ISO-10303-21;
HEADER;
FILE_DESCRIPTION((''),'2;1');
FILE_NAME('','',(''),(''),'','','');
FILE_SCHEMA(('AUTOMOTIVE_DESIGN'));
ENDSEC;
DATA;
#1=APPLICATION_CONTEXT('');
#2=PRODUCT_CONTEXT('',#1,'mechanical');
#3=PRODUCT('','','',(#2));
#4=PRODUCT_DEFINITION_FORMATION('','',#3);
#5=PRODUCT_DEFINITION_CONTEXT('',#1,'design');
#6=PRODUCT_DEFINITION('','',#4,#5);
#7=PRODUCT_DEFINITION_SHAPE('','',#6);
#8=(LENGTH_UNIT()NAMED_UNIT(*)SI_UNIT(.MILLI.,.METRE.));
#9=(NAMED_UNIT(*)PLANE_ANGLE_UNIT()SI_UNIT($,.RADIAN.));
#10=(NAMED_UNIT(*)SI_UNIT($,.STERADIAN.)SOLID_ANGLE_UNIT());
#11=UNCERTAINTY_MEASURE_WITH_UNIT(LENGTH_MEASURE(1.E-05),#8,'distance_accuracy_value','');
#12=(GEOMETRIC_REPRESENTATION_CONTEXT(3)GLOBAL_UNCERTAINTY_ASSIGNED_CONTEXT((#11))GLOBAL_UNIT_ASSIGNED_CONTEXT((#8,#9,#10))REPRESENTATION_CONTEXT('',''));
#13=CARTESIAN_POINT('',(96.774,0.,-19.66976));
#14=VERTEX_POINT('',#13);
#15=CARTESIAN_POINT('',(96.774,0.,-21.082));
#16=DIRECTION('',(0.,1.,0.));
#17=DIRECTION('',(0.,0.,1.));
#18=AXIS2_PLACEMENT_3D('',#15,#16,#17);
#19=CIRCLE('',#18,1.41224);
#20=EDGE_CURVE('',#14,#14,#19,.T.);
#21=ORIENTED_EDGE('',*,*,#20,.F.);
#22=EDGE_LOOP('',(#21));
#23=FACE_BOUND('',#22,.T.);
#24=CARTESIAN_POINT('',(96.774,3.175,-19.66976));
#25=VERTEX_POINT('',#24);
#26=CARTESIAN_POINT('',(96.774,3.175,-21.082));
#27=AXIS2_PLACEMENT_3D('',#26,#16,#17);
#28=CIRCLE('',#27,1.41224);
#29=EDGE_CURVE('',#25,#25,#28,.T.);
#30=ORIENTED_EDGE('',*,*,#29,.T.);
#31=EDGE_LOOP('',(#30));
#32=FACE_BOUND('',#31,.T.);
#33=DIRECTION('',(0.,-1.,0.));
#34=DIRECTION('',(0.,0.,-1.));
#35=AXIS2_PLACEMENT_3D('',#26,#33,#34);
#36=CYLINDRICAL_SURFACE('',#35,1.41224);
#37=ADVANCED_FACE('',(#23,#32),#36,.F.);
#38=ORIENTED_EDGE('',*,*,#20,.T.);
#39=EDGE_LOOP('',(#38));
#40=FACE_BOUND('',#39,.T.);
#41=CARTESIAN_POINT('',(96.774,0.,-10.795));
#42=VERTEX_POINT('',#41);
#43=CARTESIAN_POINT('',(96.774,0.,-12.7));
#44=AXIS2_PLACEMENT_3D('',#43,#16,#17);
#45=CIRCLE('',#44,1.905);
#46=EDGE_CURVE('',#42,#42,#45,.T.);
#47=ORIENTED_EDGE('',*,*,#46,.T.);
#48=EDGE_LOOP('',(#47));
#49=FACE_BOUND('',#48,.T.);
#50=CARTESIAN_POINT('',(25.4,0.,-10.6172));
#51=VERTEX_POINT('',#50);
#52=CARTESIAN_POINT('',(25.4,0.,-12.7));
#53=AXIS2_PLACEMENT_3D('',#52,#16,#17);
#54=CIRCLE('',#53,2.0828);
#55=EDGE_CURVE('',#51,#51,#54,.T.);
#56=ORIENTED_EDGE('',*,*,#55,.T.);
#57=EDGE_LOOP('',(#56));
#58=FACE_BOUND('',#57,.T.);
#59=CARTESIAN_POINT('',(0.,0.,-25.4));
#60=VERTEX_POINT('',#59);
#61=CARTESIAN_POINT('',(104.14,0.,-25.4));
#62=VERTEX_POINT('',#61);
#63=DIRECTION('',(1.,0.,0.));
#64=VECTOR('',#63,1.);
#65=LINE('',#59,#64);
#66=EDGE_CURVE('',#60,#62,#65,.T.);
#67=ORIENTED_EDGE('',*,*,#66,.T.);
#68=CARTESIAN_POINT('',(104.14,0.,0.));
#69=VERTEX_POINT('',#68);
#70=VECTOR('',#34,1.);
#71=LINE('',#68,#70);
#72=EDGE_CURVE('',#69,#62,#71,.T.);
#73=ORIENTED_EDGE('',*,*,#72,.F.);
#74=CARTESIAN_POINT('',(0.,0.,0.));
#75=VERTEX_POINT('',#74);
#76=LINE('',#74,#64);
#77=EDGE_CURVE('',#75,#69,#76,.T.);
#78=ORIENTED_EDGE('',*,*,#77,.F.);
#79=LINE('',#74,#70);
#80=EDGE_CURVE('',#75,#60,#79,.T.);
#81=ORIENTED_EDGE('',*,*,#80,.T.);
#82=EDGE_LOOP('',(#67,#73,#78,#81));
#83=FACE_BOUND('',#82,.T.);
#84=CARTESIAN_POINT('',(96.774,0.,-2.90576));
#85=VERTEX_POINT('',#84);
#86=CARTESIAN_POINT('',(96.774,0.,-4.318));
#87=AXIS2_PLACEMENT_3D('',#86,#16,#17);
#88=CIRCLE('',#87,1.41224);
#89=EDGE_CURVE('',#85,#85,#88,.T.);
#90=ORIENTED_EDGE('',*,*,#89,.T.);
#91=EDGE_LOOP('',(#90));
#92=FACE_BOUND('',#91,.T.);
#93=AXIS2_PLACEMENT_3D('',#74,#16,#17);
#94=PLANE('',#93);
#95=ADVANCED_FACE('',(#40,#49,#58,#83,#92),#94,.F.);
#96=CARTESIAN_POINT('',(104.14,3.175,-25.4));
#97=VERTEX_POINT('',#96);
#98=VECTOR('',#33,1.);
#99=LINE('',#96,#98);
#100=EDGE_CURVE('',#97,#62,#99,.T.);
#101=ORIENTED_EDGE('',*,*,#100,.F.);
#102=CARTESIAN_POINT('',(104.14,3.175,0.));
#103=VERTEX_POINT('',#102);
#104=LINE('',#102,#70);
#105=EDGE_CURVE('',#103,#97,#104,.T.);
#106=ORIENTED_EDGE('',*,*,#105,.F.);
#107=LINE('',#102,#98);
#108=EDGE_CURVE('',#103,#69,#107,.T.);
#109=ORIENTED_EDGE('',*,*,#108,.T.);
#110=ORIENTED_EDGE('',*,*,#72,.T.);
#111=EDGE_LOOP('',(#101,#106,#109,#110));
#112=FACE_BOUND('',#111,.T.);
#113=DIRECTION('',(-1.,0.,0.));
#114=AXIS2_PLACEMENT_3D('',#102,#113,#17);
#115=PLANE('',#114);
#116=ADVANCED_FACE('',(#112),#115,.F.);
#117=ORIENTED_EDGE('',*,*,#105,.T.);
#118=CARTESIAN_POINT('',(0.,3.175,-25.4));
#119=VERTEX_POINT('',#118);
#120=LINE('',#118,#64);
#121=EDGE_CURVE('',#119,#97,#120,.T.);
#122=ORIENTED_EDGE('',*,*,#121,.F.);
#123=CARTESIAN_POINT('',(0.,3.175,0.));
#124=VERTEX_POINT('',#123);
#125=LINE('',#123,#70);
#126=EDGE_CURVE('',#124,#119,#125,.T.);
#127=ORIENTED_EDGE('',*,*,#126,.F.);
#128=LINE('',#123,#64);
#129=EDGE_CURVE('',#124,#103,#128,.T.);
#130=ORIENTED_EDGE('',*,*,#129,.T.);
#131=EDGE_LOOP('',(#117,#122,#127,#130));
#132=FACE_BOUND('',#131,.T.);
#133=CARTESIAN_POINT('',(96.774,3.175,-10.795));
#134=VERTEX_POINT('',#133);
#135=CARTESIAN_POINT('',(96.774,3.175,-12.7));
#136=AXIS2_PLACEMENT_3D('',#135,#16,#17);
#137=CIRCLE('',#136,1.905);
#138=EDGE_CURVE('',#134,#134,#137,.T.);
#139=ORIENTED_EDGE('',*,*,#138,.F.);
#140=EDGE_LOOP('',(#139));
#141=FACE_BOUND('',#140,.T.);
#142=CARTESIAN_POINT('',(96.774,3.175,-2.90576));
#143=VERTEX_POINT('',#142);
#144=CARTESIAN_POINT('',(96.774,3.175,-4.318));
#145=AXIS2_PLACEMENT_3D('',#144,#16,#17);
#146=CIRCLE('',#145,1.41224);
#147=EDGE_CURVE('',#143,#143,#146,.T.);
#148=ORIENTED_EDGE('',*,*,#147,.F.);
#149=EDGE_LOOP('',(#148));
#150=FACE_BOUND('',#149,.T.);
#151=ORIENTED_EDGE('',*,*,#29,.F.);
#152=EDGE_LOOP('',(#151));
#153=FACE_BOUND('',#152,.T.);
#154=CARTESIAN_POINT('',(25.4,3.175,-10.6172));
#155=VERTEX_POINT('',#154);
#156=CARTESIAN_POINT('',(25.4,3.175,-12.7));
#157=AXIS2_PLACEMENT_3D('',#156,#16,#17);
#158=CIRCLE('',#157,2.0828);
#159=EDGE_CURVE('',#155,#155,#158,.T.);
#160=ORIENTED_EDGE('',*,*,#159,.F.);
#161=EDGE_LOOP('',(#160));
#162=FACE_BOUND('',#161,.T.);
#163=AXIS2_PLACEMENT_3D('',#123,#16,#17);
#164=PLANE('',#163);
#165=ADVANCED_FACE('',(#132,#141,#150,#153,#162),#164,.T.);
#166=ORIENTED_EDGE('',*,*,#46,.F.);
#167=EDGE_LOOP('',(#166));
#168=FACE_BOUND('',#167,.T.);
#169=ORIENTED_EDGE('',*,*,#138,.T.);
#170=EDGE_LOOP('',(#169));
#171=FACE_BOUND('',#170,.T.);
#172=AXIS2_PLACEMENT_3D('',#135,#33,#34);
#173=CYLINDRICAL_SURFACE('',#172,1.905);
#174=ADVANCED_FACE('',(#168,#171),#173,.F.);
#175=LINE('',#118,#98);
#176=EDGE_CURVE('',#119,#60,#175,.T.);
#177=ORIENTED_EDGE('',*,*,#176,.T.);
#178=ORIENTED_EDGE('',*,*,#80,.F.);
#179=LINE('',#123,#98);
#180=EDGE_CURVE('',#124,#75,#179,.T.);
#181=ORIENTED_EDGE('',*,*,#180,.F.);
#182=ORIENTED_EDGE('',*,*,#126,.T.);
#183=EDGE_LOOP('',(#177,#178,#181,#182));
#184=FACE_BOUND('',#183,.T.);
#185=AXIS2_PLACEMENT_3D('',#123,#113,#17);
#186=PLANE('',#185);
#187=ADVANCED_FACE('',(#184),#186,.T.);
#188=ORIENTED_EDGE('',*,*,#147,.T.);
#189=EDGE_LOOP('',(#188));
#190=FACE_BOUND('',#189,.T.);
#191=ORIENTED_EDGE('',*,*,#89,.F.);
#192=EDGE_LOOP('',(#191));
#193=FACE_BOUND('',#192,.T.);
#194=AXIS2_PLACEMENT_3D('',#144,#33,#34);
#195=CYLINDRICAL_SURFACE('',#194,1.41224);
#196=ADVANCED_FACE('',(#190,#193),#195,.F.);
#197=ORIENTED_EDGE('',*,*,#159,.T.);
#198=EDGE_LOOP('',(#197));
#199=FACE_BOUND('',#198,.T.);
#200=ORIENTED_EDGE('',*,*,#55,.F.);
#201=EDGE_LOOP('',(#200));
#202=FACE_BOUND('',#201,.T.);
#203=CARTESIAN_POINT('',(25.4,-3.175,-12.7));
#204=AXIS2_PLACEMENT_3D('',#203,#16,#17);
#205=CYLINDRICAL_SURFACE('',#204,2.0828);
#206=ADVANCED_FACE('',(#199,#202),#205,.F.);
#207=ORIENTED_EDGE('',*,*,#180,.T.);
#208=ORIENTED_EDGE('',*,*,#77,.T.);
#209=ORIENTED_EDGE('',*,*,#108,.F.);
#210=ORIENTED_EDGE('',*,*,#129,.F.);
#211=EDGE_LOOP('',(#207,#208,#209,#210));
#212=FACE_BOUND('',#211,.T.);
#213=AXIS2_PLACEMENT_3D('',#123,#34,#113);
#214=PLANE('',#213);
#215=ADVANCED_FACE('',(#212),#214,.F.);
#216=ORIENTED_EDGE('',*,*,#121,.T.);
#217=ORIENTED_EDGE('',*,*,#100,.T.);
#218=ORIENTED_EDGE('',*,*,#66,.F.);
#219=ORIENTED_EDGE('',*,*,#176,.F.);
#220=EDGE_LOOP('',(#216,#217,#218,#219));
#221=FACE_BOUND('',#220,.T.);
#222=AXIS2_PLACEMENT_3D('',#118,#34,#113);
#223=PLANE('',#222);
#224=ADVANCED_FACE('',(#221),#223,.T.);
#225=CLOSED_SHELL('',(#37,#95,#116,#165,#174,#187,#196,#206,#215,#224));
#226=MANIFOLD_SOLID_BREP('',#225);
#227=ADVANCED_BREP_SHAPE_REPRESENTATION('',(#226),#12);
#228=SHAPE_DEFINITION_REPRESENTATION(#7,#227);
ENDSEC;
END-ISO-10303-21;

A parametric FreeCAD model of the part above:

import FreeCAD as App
import Part
import Sketcher

V = App.Vector
Q = App.Units.Quantity


def add_polygon(sketch, points):
    """Adds a closed chain of lines whose ends are joined by coincident constraints."""
    first, n = sketch.GeometryCount, len(points)
    for a, b in zip(points, points[1:] + points[:1]):
        sketch.addGeometry(Part.LineSegment(App.Vector(*a, 0), App.Vector(*b, 0)), False)
    for i in range(n):
        sketch.addConstraint(Sketcher.Constraint("Coincident", first + i, 2, first + (i + 1) % n, 1))

doc = App.newDocument("Part")
params = doc.addObject("Spreadsheet::Sheet", "Params")
for row, (alias, value) in enumerate([
    ("sketch1_diameter", "0.15 in"),
    ("sketch1_height", "1 in"),
    ("sketch1_width", "4.1 in"),
    ("pad1_length", "0.125 in"),
    ("sketch2_diameter", "0.164 in"),
    ("pocket1_length", "0.25 in"),
], start=1):
    params.set(f"A{row}", alias)
    params.set(f"B{row}", "=" + value)
    params.setAlias(f"B{row}", alias)

body = doc.addObject("PartDesign::Body", "Body")

sketch1 = doc.addObject("Sketcher::SketchObject", "Sketch")
body.addObject(sketch1)
sketch1.AttachmentSupport = (doc.XZ_Plane, [""])
sketch1.MapMode = "FlatFace"
add_polygon(sketch1, [(0, -25.4), (0, 0), (104.1, 0), (104.1, -25.4)])
sketch1.addGeometry(Part.Circle(V(96.8, -4.3, 0), V(0, 0, 1), 1.4), False)
sketch1.addGeometry(Part.Circle(V(96.8, -12.7, 0), V(0, 0, 1), 1.9), False)
sketch1.addGeometry(Part.Circle(V(96.8, -21.1, 0), V(0, 0, 1), 1.4), False)
sketch1.addConstraint([
    Sketcher.Constraint("Vertical", 0),
    Sketcher.Constraint("Horizontal", 1),
    Sketcher.Constraint("Vertical", 2),
    Sketcher.Constraint("Horizontal", 3),
    Sketcher.Constraint("Coincident", 0, 2, -1, 1),
    Sketcher.Constraint("Equal", 4, 6),
    Sketcher.Constraint("Vertical", 4, 3, 5, 3),
    Sketcher.Constraint("Vertical", 5, 3, 6, 3),
    Sketcher.Constraint("Diameter", 5, Q("0.15 in")),
    Sketcher.Constraint("DistanceY", 0, 1, 0, 2, Q("1 in")),
    Sketcher.Constraint("DistanceX", 1, 1, 1, 2, Q("4.1 in")),
    Sketcher.Constraint("Diameter", 4, Q("0.1112 in")),
    Sketcher.Constraint("DistanceY", 5, 3, -1, 1, Q("0.5 in")),
    Sketcher.Constraint("DistanceX", -1, 1, 4, 3, Q("3.81 in")),
    Sketcher.Constraint("DistanceY", 4, 3, -1, 1, Q("0.17 in")),
    Sketcher.Constraint("DistanceY", 6, 3, -1, 1, Q("0.83 in")),
])
sketch1.setExpression("Constraints[12]", "Params.sketch1_diameter")
sketch1.setExpression("Constraints[13]", "Params.sketch1_height")
sketch1.setExpression("Constraints[14]", "Params.sketch1_width")
pad1 = doc.addObject("PartDesign::Pad", "Pad")
body.addObject(pad1)
pad1.Profile = sketch1
pad1.setExpression("Length", "Params.pad1_length")
pad1.Reversed = True

sketch2 = doc.addObject("Sketcher::SketchObject", "Sketch001")
body.addObject(sketch2)
sketch2.AttachmentSupport = (doc.XZ_Plane, [""])
sketch2.MapMode = "FlatFace"
sketch2.AttachmentOffset = App.Placement(V(0, 0, -0.125 * 25.4), App.Rotation())
sketch2.addGeometry(Part.Circle(V(25.4, -12.7, 0), V(0, 0, 1), 2.1), False)
sketch2.addConstraint([
    Sketcher.Constraint("Diameter", 0, Q("0.164 in")),
    Sketcher.Constraint("DistanceX", -1, 1, 0, 3, Q("1 in")),
    Sketcher.Constraint("DistanceY", 0, 3, -1, 1, Q("0.5 in")),
])
sketch2.setExpression("Constraints[0]", "Params.sketch2_diameter")
pocket1 = doc.addObject("PartDesign::Pocket", "Pocket")
body.addObject(pocket1)
pocket1.Profile = sketch2
pocket1.setExpression("Length", "Params.pocket1_length")
pocket1.Reversed = True

doc.recompute()
